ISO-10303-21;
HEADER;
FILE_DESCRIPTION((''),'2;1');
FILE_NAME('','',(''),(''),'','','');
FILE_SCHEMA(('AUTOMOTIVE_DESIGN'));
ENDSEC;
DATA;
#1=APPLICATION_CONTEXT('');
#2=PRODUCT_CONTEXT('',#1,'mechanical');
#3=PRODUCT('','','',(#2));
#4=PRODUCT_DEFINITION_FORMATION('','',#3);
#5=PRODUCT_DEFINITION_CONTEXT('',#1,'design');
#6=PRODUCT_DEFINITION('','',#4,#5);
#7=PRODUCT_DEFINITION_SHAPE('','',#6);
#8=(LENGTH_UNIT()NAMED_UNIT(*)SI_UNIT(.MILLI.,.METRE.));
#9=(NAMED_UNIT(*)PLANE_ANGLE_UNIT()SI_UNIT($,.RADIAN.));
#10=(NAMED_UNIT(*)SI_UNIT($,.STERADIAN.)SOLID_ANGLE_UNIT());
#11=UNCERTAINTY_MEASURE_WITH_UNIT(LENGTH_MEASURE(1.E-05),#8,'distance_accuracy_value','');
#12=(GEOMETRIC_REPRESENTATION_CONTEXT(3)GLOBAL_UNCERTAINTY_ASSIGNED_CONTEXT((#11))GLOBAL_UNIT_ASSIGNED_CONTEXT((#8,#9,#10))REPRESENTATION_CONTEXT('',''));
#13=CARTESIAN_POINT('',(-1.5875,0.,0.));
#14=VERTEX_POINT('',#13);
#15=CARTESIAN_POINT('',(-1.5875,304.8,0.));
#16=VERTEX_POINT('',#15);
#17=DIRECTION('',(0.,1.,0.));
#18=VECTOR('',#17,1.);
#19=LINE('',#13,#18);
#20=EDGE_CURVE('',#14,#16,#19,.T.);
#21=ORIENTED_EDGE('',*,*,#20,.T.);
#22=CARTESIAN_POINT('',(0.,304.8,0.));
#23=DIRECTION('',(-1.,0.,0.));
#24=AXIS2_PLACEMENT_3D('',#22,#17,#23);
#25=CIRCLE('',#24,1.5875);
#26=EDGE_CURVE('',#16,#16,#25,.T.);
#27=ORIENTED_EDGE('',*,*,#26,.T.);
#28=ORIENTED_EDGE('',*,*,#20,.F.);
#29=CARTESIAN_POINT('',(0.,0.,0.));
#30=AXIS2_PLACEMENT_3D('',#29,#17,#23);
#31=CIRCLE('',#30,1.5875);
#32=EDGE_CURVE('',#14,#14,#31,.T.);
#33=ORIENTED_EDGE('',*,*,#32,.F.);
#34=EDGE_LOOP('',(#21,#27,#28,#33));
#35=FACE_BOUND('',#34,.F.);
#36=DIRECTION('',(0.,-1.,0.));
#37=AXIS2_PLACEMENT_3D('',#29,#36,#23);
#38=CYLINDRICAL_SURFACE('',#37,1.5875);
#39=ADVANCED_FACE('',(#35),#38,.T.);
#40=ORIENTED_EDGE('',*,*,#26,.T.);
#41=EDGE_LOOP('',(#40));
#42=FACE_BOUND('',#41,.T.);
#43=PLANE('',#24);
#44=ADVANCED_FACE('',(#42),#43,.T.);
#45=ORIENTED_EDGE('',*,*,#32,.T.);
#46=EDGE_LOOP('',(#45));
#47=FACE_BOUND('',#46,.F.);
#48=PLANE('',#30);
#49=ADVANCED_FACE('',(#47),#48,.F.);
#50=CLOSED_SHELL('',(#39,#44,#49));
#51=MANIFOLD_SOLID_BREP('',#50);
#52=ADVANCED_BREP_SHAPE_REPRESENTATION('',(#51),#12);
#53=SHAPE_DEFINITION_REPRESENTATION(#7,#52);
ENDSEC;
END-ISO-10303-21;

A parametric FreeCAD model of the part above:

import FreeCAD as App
import Part
import Sketcher
Q = App.Units.Quantity

doc = App.newDocument("Part")
body = doc.addObject("PartDesign::Body", "Body")

# Sketch on XZ plane
sketch1 = body.newObject("Sketcher::SketchObject", "Sketch")
sketch1.AttachmentSupport = (doc.getObject("XZ_Plane"), [""])
sketch1.MapMode = "FlatFace"
sketch1.addGeometry(Part.Circle(App.Vector(0, 0, 0), App.Vector(0, 0, 1), 1.5875), False)
sketch1.addConstraint([
    Sketcher.Constraint("Coincident", 0, 3, -1, 1),
    Sketcher.Constraint("Diameter", 0, Q("0.125 in")),
])
pad1 = body.newObject("PartDesign::Pad", "Pad")
pad1.Profile = sketch1
pad1.Length = Q("12 in")
pad1.Reversed = True

doc.recompute()
